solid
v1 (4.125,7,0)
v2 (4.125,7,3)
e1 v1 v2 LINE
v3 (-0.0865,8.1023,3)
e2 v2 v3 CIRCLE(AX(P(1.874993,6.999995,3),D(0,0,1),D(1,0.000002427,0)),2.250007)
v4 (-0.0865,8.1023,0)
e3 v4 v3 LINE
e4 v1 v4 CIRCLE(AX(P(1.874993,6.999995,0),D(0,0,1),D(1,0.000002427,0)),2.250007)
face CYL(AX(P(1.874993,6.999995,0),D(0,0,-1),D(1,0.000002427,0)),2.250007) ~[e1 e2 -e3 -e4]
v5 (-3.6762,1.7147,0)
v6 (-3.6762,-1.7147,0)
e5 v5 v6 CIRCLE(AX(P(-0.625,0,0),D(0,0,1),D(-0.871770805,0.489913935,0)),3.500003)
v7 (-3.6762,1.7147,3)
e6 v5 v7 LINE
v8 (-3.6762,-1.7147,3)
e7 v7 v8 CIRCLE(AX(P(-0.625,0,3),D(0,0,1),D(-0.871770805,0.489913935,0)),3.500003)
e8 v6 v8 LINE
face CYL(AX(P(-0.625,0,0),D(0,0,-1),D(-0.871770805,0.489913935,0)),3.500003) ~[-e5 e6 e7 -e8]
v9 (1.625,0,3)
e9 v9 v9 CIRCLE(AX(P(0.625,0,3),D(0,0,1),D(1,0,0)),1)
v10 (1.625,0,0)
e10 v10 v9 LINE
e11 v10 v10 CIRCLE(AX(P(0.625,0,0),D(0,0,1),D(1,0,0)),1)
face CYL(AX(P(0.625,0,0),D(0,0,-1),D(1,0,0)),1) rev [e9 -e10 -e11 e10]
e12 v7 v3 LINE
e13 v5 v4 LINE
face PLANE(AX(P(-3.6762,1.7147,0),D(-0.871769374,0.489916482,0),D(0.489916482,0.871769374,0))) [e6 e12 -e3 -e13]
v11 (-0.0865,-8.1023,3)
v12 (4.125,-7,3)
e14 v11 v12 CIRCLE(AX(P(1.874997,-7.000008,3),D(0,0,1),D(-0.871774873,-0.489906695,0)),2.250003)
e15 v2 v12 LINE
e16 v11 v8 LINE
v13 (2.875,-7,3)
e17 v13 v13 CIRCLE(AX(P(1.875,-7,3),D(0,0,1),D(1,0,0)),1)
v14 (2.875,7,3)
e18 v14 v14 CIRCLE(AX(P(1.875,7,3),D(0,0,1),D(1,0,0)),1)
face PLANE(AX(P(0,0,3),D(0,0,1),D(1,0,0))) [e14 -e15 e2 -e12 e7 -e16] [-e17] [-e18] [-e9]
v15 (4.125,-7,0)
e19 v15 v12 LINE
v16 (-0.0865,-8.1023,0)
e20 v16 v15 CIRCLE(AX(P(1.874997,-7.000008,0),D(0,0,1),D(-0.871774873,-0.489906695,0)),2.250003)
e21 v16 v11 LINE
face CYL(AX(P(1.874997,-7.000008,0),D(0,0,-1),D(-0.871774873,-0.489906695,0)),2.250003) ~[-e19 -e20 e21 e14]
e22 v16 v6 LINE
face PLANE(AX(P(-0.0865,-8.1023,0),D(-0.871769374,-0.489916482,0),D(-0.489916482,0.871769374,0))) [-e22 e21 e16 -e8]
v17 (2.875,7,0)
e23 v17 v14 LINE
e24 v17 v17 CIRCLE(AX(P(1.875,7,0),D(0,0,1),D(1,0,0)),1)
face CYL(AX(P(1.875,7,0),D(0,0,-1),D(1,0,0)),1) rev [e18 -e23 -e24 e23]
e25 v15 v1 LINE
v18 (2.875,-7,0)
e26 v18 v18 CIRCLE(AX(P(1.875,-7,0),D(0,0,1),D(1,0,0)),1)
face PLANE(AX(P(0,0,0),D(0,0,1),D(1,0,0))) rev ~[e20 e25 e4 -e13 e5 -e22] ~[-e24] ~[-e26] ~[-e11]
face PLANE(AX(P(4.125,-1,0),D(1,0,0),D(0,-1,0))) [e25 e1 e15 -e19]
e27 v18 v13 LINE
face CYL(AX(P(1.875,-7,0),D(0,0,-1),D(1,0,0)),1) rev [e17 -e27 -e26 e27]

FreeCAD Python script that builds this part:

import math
import FreeCAD as App
import Part
import Sketcher
from FreeCAD import Vector

doc = App.newDocument("Part")
body = doc.addObject("PartDesign::Body", "Body")

sketch1 = body.newObject("Sketcher::SketchObject", "Sketch")
sketch1.AttachmentSupport = (doc.getObject("XY_Plane"), [""])
sketch1.MapMode = "FlatFace"
sketch1.addGeometry(Part.LineSegment(Vector(4.1, -7, 0), Vector(4.1, 7, 0)), False)
sketch1.addGeometry(Part.ArcOfCircle(Part.Circle(Vector(1.9, 7, 0), Vector(0, 0, 1), 2.2), math.radians(0), math.radians(151)), False)
sketch1.addGeometry(Part.LineSegment(Vector(-0.1, 8.1, 0), Vector(-3.7, 1.7, 0)), False)
sketch1.addGeometry(Part.ArcOfCircle(Part.Circle(Vector(-0.6, 0, 0), Vector(0, 0, 1), 3.5), math.radians(151), math.radians(209)), False)
sketch1.addGeometry(Part.LineSegment(Vector(-3.7, -1.7, 0), Vector(-0.1, -8.1, 0)), False)
sketch1.addGeometry(Part.ArcOfCircle(Part.Circle(Vector(1.9, -7, 0), Vector(0, 0, 1), 2.3), math.radians(-151), math.radians(0)), False)
sketch1.addGeometry(Part.Circle(Vector(1.9, -7, 0), Vector(0, 0, 1), 1), False)
sketch1.addGeometry(Part.Circle(Vector(1.9, 7, 0), Vector(0, 0, 1), 1), False)
sketch1.addGeometry(Part.Circle(Vector(0.6, 0, 0), Vector(0, 0, 1), 1), False)
sketch1.addConstraint(Sketcher.Constraint("Tangent", 0, 2, 1, 1))
sketch1.addConstraint(Sketcher.Constraint("Tangent", 1, 2, 2, 1))
sketch1.addConstraint(Sketcher.Constraint("Tangent", 2, 2, 3, 1))
sketch1.addConstraint(Sketcher.Constraint("Tangent", 3, 2, 4, 1))
sketch1.addConstraint(Sketcher.Constraint("Tangent", 4, 2, 5, 1))
sketch1.addConstraint(Sketcher.Constraint("Tangent", 5, 2, 0, 1))
sketch1.addConstraint(Sketcher.Constraint("Vertical", 0))
sketch1.addConstraint(Sketcher.Constraint("Coincident", 6, 3, 5, 3))
sketch1.addConstraint(Sketcher.Constraint("Coincident", 7, 3, 1, 3))
sketch1.addConstraint(Sketcher.Constraint("Equal", 1, 5))
sketch1.addConstraint(Sketcher.Constraint("Equal", 6, 7))
sketch1.addConstraint(Sketcher.Constraint("Equal", 7, 8))
sketch1.addConstraint(Sketcher.Constraint("Symmetric", 3, 3, 8, 3, -1, 1))
sketch1.addConstraint(Sketcher.Constraint("Symmetric", 2, 2, 3, 2, -1))
sketch1.addConstraint(Sketcher.Constraint("Diameter", 6, 2.0))
sketch1.addConstraint(Sketcher.Constraint("Radius", 3, 3.5))
sketch1.addConstraint(Sketcher.Constraint("DistanceY", 0, 1, 0, 2, 14.0))
sketch1.addConstraint(Sketcher.Constraint("Radius", 1, 2.25))
sketch1.addConstraint(Sketcher.Constraint("DistanceX", 3, 3, 1, 3, 2.5))
sketch1.addConstraint(Sketcher.Constraint("DistanceX", 8, 3, 0, 2, 3.5))
pad1 = body.newObject("PartDesign::Pad", "Pad")
pad1.Profile = sketch1
pad1.Length = 3

doc.recompute()
